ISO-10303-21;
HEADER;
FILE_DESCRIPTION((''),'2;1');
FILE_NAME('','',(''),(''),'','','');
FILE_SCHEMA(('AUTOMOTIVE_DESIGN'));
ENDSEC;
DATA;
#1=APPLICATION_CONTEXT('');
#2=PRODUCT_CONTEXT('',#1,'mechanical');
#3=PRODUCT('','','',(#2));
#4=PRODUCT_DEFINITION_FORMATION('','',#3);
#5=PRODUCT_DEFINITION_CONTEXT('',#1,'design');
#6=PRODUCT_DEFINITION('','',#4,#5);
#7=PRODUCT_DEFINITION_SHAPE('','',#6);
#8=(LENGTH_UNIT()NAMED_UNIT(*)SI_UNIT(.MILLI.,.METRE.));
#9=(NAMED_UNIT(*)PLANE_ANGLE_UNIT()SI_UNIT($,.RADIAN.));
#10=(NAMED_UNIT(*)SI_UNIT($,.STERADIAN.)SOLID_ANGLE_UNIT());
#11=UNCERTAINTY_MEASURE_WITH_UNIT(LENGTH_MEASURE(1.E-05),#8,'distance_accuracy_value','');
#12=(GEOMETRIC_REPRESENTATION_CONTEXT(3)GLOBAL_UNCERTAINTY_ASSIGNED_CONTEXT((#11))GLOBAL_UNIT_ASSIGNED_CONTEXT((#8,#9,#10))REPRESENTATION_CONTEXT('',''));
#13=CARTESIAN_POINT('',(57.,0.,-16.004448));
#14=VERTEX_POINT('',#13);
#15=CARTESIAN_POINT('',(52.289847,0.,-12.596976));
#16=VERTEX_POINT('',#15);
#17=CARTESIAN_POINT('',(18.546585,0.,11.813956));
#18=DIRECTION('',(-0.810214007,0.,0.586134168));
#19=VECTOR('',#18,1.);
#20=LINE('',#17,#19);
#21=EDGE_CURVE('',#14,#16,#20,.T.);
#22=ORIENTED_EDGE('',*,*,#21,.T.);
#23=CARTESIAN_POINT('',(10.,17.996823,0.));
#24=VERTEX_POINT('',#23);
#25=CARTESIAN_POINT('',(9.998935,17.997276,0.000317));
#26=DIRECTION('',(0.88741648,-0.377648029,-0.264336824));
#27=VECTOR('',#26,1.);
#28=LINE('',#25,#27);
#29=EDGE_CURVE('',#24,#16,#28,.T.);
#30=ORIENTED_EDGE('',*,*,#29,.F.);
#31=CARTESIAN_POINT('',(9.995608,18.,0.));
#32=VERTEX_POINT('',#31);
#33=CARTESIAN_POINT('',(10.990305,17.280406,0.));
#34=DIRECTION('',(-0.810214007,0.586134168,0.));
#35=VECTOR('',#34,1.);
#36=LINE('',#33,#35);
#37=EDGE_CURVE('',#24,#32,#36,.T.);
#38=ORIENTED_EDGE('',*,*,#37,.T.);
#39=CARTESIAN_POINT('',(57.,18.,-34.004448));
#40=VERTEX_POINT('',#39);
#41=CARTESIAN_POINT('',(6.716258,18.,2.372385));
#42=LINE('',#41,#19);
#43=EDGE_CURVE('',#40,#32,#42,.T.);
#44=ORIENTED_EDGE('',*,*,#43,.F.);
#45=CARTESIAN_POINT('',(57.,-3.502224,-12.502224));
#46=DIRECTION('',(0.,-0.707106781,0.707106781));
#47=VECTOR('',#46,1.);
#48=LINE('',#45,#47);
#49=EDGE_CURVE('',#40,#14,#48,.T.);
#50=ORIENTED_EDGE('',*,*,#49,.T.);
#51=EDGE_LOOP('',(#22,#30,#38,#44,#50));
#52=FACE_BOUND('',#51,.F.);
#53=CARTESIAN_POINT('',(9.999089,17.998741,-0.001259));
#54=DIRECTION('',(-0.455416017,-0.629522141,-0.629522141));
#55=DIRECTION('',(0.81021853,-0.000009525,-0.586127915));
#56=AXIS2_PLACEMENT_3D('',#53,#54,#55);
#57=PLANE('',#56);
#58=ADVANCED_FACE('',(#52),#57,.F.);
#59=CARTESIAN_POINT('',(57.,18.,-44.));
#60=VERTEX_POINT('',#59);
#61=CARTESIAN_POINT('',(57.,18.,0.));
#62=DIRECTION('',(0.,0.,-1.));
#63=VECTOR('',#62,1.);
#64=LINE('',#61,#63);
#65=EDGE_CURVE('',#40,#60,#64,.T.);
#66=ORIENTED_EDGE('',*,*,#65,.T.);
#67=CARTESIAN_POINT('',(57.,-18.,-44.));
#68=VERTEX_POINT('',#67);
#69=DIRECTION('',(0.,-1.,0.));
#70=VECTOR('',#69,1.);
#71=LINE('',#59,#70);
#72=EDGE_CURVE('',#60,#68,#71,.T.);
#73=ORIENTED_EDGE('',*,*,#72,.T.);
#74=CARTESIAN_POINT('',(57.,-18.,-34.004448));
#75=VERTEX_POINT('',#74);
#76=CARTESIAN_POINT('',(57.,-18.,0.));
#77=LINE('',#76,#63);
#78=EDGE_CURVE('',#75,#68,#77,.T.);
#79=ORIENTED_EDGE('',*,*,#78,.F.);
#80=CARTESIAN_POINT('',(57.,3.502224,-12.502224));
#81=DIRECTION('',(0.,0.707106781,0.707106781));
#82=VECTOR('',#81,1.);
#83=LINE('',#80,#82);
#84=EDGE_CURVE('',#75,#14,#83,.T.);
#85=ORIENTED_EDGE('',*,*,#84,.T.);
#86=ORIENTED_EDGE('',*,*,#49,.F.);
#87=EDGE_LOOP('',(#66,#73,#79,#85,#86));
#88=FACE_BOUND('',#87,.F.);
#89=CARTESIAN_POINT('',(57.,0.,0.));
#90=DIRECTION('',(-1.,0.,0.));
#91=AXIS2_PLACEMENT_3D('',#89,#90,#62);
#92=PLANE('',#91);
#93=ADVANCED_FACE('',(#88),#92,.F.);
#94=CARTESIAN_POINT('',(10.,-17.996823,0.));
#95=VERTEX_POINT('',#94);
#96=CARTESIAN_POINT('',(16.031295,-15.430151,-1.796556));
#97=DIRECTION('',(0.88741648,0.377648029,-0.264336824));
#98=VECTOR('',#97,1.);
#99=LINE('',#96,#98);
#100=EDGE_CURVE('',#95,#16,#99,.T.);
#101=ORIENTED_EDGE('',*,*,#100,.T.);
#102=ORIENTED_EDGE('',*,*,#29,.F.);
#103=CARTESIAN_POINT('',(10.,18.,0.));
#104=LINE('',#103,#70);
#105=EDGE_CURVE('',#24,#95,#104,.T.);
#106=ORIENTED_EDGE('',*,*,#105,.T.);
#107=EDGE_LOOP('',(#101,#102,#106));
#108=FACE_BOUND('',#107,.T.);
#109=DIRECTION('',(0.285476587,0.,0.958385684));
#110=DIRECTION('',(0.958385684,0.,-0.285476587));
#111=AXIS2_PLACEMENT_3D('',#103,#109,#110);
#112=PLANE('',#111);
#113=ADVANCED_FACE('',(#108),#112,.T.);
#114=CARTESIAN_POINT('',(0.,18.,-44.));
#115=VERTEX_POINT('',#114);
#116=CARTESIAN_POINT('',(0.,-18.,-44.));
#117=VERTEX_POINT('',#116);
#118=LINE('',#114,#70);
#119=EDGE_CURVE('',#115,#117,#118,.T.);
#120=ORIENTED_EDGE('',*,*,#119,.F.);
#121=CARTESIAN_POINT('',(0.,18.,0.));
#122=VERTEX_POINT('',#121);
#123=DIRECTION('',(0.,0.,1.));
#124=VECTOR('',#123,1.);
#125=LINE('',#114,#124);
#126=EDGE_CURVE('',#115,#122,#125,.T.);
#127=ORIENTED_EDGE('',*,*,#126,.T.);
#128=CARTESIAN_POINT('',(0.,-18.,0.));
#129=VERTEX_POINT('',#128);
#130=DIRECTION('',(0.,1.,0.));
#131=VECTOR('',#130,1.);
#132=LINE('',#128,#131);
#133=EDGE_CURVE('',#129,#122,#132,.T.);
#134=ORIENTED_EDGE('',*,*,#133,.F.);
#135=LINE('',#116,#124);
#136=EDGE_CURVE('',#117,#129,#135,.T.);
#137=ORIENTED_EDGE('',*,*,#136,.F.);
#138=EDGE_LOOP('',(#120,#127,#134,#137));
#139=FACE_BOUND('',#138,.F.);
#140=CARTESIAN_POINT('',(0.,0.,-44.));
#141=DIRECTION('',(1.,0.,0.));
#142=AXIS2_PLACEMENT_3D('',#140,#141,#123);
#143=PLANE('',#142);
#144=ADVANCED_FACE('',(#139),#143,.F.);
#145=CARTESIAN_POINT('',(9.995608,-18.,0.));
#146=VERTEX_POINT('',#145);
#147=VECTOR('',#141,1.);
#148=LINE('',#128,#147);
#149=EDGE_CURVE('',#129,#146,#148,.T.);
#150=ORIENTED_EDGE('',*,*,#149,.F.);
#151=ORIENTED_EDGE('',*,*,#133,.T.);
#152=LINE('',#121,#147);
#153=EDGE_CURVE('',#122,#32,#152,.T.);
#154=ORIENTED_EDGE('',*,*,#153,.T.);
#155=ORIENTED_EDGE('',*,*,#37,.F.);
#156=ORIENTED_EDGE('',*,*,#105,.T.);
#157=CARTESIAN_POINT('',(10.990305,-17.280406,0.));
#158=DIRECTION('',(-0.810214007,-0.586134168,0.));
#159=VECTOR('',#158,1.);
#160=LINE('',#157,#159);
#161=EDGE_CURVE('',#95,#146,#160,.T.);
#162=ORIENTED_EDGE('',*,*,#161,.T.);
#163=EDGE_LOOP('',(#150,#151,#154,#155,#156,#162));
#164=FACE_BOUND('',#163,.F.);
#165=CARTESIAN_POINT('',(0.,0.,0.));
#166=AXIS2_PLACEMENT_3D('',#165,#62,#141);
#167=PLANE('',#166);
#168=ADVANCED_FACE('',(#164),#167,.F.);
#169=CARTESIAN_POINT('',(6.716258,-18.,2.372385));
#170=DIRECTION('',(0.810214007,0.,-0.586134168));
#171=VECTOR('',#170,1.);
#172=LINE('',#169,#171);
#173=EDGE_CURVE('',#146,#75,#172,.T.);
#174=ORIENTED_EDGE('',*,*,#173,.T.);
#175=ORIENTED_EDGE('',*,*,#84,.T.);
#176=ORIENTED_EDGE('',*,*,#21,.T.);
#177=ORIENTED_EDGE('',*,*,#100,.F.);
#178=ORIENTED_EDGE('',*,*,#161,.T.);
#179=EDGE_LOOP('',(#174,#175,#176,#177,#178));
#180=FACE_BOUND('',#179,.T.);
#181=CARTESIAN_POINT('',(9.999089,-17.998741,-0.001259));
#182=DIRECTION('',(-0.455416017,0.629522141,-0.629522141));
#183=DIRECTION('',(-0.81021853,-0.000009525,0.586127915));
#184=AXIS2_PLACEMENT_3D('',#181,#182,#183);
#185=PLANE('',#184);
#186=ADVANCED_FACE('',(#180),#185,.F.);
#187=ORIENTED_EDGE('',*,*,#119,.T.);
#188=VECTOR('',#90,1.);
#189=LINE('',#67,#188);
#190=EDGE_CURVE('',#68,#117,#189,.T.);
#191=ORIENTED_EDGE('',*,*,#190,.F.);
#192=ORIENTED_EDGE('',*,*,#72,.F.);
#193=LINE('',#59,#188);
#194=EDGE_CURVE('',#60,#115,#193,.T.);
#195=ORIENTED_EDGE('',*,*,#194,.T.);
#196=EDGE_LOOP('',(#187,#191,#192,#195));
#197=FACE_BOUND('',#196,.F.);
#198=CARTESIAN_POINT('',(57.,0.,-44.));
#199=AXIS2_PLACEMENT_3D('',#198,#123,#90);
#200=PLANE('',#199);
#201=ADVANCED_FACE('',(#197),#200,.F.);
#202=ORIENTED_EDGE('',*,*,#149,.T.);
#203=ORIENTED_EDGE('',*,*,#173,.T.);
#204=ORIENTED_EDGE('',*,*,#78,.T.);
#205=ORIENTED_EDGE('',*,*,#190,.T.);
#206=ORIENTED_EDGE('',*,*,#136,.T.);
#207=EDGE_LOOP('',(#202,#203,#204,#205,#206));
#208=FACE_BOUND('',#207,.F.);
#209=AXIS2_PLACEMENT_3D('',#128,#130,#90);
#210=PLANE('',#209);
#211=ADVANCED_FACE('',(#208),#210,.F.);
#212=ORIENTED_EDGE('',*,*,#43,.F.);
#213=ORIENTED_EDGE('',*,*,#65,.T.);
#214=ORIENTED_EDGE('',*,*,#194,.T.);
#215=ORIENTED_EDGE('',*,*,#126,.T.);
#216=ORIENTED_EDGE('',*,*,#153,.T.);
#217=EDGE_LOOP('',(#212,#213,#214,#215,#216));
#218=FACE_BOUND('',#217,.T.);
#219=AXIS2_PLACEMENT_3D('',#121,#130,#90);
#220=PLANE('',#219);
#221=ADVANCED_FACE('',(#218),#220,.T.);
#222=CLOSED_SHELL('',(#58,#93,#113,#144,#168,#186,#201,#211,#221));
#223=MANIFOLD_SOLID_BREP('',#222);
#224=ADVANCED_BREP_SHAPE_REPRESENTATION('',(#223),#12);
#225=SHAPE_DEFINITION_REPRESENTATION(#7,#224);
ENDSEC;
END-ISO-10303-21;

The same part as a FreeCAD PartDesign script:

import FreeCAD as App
import Part
import Sketcher


def add_polygon(sketch, points):
    """Adds a closed chain of lines whose ends are joined by coincident constraints."""
    first, n = sketch.GeometryCount, len(points)
    for a, b in zip(points, points[1:] + points[:1]):
        sketch.addGeometry(Part.LineSegment(App.Vector(*a, 0), App.Vector(*b, 0)), False)
    for i in range(n):
        sketch.addConstraint(Sketcher.Constraint("Coincident", first + i, 2, first + (i + 1) % n, 1))

doc = App.newDocument("Part")
params = doc.addObject("Spreadsheet::Sheet", "Params")
for row, (alias, value) in enumerate([
    ("sketch1_width", "57 mm"),
    ("sketch1_height", "44 mm"),
    ("pad1_length", "36 mm"),
    ("sketch2_width", "47 mm"),
    ("sketch2_height", "14 mm"),
    ("pocket1_length", "40 mm"),
    ("pocket2_length", "40 mm"),
], start=1):
    params.set(f"A{row}", alias)
    params.set(f"B{row}", "=" + value)
    params.setAlias(f"B{row}", alias)

body = doc.addObject("PartDesign::Body", "Body")

sketch1 = body.newObject("Sketcher::SketchObject", "Sketch")
sketch1.AttachmentSupport = (doc.getObject("XZ_Plane"), [""])
sketch1.MapMode = "FlatFace"
add_polygon(sketch1, [(0, -44), (0, 0), (57, 0), (57, -44)])
sketch1.addConstraint([
    Sketcher.Constraint("Vertical", 0),
    Sketcher.Constraint("Horizontal", 1),
    Sketcher.Constraint("Vertical", 2),
    Sketcher.Constraint("Horizontal", 3),
    Sketcher.Constraint("Coincident", 0, 2, -1, 1),
    Sketcher.Constraint("DistanceX", 1, 1, 1, 2, 57.0),
    Sketcher.Constraint("DistanceY", 0, 1, 0, 2, 44.0),
])
sketch1.setExpression("Constraints[9]", "Params.sketch1_width")
sketch1.setExpression("Constraints[10]", "Params.sketch1_height")
pad1 = body.newObject("PartDesign::Pad", "Pad")
pad1.Profile = sketch1
pad1.setExpression("Length", "Params.pad1_length")
pad1.Midplane = True

sketch2 = body.newObject("Sketcher::SketchObject", "Sketch001")
sketch2.AttachmentSupport = (doc.getObject("XZ_Plane"), [""])
sketch2.MapMode = "FlatFace"
sketch2.AttachmentOffset = App.Placement(App.Vector(0, 0, -18), App.Rotation())
add_polygon(sketch2, [(57, -14), (10, 0), (57, 0)])
sketch2.addConstraint([
    Sketcher.Constraint("Horizontal", 1),
    Sketcher.Constraint("Vertical", 2),
    Sketcher.Constraint("PointOnObject", 0, 2, -1),
    Sketcher.Constraint("DistanceX", -1, 1, 0, 2, 10.0),
    Sketcher.Constraint("DistanceX", 1, 1, 1, 2, 47.0),
    Sketcher.Constraint("DistanceY", 2, 2, 2, 1, 14.0),
])
sketch2.setExpression("Constraints[7]", "Params.sketch2_width")
sketch2.setExpression("Constraints[8]", "Params.sketch2_height")
pocket1 = body.newObject("PartDesign::Pocket", "Pocket")
pocket1.Profile = sketch2
pocket1.setExpression("Length", "Params.pocket1_length")
pocket1.Reversed = True

sketch3 = body.newObject("Sketcher::SketchObject", "Sketch002")
sketch3.Placement = App.Placement(App.Vector(10, 18, 0), App.Rotation(App.Vector(0.81021853, -0.000009525, -0.586127915), App.Vector(0.368974504, -0.776982544, 0.510054842), App.Vector(-0.455416017, -0.629522141, -0.629522141), "ZXY"))
add_polygon(sketch3, [(-15, 29), (-15, -12), (94, -12), (94, 29)])
sketch3.addConstraint([
    Sketcher.Constraint("Vertical", 0),
    Sketcher.Constraint("Horizontal", 1),
    Sketcher.Constraint("Vertical", 2),
    Sketcher.Constraint("Horizontal", 3),
    Sketcher.Constraint("DistanceX", 1, 1, 1, 2, 108.8713),
    Sketcher.Constraint("DistanceY", 0, 2, 0, 1, 41.1384),
    Sketcher.Constraint("DistanceX", -1, 1, 1, 2, 93.717),
    Sketcher.Constraint("DistanceY", 0, 2, -1, 1, 12.3218),
])
pocket2 = body.newObject("PartDesign::Pocket", "Pocket001")
pocket2.Profile = sketch3
pocket2.setExpression("Length", "Params.pocket2_length")
doc.recompute()

mirrored = body.newObject("PartDesign::Mirrored", "Mirrored")
mirrored.Originals = [pocket2]
mirrored.MirrorPlane = (doc.getObject("XZ_Plane"), [""])
body.Tip = mirrored

doc.recompute()
